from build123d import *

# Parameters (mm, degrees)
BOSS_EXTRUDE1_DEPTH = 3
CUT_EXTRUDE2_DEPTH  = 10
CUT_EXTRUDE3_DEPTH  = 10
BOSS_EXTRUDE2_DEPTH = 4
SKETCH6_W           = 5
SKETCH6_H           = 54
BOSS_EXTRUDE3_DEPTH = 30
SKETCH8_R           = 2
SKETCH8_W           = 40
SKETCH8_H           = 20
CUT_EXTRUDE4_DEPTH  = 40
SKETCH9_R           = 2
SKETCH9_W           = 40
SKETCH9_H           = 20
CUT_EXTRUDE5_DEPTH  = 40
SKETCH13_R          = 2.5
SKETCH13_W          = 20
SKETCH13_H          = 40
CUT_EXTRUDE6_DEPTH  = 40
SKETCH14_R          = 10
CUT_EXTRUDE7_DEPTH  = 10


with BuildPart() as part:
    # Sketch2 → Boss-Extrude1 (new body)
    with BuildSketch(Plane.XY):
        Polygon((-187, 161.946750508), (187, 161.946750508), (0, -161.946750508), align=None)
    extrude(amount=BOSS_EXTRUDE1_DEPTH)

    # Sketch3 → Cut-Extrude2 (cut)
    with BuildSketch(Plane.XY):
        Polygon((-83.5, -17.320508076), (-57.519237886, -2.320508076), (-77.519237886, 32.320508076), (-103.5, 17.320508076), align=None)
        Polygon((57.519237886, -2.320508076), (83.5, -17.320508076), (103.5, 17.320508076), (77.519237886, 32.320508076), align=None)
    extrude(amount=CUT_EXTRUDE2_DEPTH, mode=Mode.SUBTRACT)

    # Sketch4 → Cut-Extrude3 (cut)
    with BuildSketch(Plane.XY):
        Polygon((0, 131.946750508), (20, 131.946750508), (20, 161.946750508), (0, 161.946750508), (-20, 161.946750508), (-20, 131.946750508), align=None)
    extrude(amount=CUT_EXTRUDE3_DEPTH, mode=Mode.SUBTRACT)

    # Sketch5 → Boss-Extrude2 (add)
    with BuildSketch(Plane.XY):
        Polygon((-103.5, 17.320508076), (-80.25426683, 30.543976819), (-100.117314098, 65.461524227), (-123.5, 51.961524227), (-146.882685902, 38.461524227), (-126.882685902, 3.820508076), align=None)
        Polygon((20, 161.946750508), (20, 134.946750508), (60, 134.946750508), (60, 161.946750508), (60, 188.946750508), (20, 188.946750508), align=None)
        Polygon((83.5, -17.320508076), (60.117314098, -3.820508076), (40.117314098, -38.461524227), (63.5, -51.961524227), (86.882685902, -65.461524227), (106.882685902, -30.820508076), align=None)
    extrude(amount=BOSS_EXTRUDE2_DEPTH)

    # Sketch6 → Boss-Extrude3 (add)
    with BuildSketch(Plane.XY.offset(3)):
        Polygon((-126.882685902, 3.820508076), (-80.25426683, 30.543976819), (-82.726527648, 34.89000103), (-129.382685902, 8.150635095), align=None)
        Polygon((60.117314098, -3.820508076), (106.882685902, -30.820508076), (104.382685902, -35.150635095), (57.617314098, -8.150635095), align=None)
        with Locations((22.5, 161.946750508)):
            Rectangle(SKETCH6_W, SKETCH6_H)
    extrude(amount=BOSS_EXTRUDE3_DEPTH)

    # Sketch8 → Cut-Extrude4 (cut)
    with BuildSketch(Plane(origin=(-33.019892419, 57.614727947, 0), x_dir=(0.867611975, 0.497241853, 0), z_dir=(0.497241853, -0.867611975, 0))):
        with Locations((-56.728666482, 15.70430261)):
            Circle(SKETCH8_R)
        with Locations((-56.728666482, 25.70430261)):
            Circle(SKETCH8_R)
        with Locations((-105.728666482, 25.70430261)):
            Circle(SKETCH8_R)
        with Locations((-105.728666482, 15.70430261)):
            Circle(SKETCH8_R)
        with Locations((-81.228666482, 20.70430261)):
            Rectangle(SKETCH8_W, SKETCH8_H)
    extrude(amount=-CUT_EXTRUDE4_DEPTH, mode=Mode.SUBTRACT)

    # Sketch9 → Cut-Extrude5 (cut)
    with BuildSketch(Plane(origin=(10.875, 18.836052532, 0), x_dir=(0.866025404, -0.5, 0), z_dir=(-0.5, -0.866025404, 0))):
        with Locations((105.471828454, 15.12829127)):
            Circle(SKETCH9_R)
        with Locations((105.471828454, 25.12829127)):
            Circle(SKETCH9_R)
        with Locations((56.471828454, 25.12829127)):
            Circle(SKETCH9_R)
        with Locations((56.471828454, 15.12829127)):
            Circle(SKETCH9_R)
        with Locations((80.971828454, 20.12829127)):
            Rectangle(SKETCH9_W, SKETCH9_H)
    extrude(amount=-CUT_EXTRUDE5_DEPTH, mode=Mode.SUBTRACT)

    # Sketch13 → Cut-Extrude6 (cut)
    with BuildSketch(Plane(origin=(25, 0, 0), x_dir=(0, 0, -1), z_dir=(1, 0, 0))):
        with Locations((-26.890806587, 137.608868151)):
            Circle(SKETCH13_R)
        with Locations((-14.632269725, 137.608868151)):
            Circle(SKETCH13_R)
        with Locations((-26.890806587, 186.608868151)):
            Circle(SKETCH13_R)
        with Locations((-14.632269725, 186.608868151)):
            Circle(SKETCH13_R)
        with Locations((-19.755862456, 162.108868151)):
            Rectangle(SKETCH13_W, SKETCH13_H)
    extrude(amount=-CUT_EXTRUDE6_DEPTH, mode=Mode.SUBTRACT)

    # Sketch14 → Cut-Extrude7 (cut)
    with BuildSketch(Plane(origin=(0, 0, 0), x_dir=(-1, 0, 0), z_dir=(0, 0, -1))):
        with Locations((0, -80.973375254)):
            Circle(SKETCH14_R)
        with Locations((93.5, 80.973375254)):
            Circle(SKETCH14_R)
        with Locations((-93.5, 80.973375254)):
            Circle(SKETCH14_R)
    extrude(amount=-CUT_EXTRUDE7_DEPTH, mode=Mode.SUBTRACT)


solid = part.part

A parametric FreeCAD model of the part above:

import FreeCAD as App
import Part
import Sketcher

V = App.Vector
Q = App.Units.Quantity

doc = App.newDocument("Part")
params = doc.addObject("Spreadsheet::Sheet", "Params")
for row, (alias, value) in enumerate([
    ("sketch1_width", "374 mm"),
    ("pad1_length", "3 mm"),
    ("sketch2_length", "30 mm"),
    ("sketch2_length2", "40 mm"),
    ("pocket1_length", "10 mm"),
    ("sketch3_width", "40 mm"),
    ("sketch3_height", "30 mm"),
    ("pocket2_length", "10 mm"),
    ("sketch4_width", "40 mm"),
    ("sketch4_height", "54 mm"),
    ("sketch4_length", "54 mm"),
    ("sketch4_length2", "40 mm"),
    ("sketch4_length3", "27 mm"),
    ("pad2_length", "4 mm"),
    ("sketch5_width", "5 mm"),
    ("sketch5_height", "54 mm"),
    ("sketch5_length", "5 mm"),
    ("sketch5_length2", "5 mm"),
    ("sketch5_length3", "54 mm"),
    ("pad3_length", "30 mm"),
    ("sketch6_diameter", "4 mm"),
    ("sketch6_width", "40 mm"),
    ("sketch6_height", "20 mm"),
    ("pocket3_length", "40 mm"),
    ("sketch7_diameter", "4 mm"),
    ("sketch7_width", "40 mm"),
    ("sketch7_height", "20 mm"),
    ("pocket4_length", "40 mm"),
    ("sketch8_diameter", "5 mm"),
    ("sketch8_width", "40 mm"),
    ("sketch8_height", "20 mm"),
    ("pocket5_length", "40 mm"),
    ("sketch9_diameter", "20 mm"),
    ("pocket6_length", "10 mm"),
], start=1):
    params.set(f"A{row}", alias)
    params.set(f"B{row}", "=" + value)
    params.setAlias(f"B{row}", alias)

body = doc.addObject("PartDesign::Body", "Body")

sketch1 = body.newObject("Sketcher::SketchObject", "Sketch")
sketch1.AttachmentSupport = (doc.getObject("XY_Plane"), [""])
sketch1.MapMode = "FlatFace"
sketch1.addGeometry([
    Part.LineSegment(V(187, 162, 0), V(-187, 162, 0)),
    Part.LineSegment(V(-187, 162, 0), V(0, -162, 0)),
    Part.LineSegment(V(0, -162, 0), V(187, 162, 0)),
], False)
sketch1.addConstraint([
    Sketcher.Constraint("Coincident", 0, 2, 1, 1),
    Sketcher.Constraint("Coincident", 1, 2, 2, 1),
    Sketcher.Constraint("Coincident", 2, 2, 0, 1),
    Sketcher.Constraint("Horizontal", 0),
    Sketcher.Constraint("PointOnObject", 1, 2, -2),
    Sketcher.Constraint("Equal", 1, 2),
    Sketcher.Constraint("DistanceX", 0, 2, 0, 1, Q("374 mm")),
    Sketcher.Constraint("Angle", 1, Q("-60 deg")),
    Sketcher.Constraint("DistanceY", -1, 1, 0, 2, Q("161.946751 mm")),
])
sketch1.setExpression("Constraints[6]", "Params.sketch1_width")
pad1 = body.newObject("PartDesign::Pad", "Pad")
pad1.Profile = sketch1
pad1.setExpression("Length", "Params.pad1_length")

sketch2 = body.newObject("Sketcher::SketchObject", "Sketch001")
sketch2.AttachmentSupport = (doc.getObject("XY_Plane"), [""])
sketch2.MapMode = "FlatFace"
sketch2.addGeometry([
    Part.LineSegment(V(-84, -17, 0), V(-58, -2, 0)),
    Part.LineSegment(V(-58, -2, 0), V(-78, 32, 0)),
    Part.LineSegment(V(-78, 32, 0), V(-104, 17, 0)),
    Part.LineSegment(V(-104, 17, 0), V(-84, -17, 0)),
    Part.LineSegment(V(58, -2, 0), V(84, -17, 0)),
    Part.LineSegment(V(84, -17, 0), V(104, 17, 0)),
    Part.LineSegment(V(104, 17, 0), V(78, 32, 0)),
    Part.LineSegment(V(78, 32, 0), V(58, -2, 0)),
], False)
sketch2.addConstraint([
    Sketcher.Constraint("Coincident", 0, 2, 1, 1),
    Sketcher.Constraint("Coincident", 1, 2, 2, 1),
    Sketcher.Constraint("Coincident", 2, 2, 3, 1),
    Sketcher.Constraint("Coincident", 3, 2, 0, 1),
    Sketcher.Constraint("Coincident", 4, 2, 5, 1),
    Sketcher.Constraint("Coincident", 5, 2, 6, 1),
    Sketcher.Constraint("Coincident", 6, 2, 7, 1),
    Sketcher.Constraint("Coincident", 7, 2, 4, 1),
    Sketcher.Constraint("Symmetric", 3, 2, 4, 2, -2),
    Sketcher.Constraint("Symmetric", 2, 2, 5, 2, -2),
    Sketcher.Constraint("Symmetric", 1, 2, 6, 2, -2),
    Sketcher.Constraint("Symmetric", 0, 2, 7, 2, -2),
    Sketcher.Constraint("Perpendicular", 0, 1),
    Sketcher.Constraint("Perpendicular", 1, 2),
    Sketcher.Constraint("Perpendicular", 2, 3),
    Sketcher.Constraint("Angle", 0, Q("30 deg")),
    Sketcher.Constraint("Distance", 0, Q("30 mm")),
    Sketcher.Constraint("Distance", 1, Q("40 mm")),
    Sketcher.Constraint("DistanceX", 3, 2, 4, 2, Q("167 mm")),
    Sketcher.Constraint("DistanceY", 0, 2, -1, 1, Q("2.320508 mm")),
])
sketch2.setExpression("Constraints[16]", "Params.sketch2_length")
sketch2.setExpression("Constraints[17]", "Params.sketch2_length2")
pocket1 = body.newObject("PartDesign::Pocket", "Pocket")
pocket1.Profile = sketch2
pocket1.setExpression("Length", "Params.pocket1_length")
pocket1.Reversed = True

sketch3 = body.newObject("Sketcher::SketchObject", "Sketch002")
sketch3.AttachmentSupport = (doc.getObject("XY_Plane"), [""])
sketch3.MapMode = "FlatFace"
sketch3.addGeometry([
    Part.LineSegment(V(20, 132, 0), V(20, 162, 0)),
    Part.LineSegment(V(20, 162, 0), V(-20, 162, 0)),
    Part.LineSegment(V(-20, 162, 0), V(-20, 132, 0)),
    Part.LineSegment(V(-20, 132, 0), V(20, 132, 0)),
], False)
sketch3.addConstraint([
    Sketcher.Constraint("Coincident", 0, 2, 1, 1),
    Sketcher.Constraint("Coincident", 1, 2, 2, 1),
    Sketcher.Constraint("Coincident", 2, 2, 3, 1),
    Sketcher.Constraint("Coincident", 3, 2, 0, 1),
    Sketcher.Constraint("Vertical", 0),
    Sketcher.Constraint("Horizontal", 1),
    Sketcher.Constraint("Vertical", 2),
    Sketcher.Constraint("Horizontal", 3),
    Sketcher.Constraint("DistanceX", 1, 2, 1, 1, Q("40 mm")),
    Sketcher.Constraint("DistanceY", 0, 1, 0, 2, Q("30 mm")),
    Sketcher.Constraint("DistanceX", -1, 1, 0, 2, Q("20 mm")),
    Sketcher.Constraint("DistanceY", -1, 1, 0, 2, Q("161.946751 mm")),
])
sketch3.setExpression("Constraints[8]", "Params.sketch3_width")
sketch3.setExpression("Constraints[9]", "Params.sketch3_height")
pocket2 = body.newObject("PartDesign::Pocket", "Pocket001")
pocket2.Profile = sketch3
pocket2.setExpression("Length", "Params.pocket2_length")
pocket2.Reversed = True

sketch4 = body.newObject("Sketcher::SketchObject", "Sketch003")
sketch4.AttachmentSupport = (doc.getObject("XY_Plane"), [""])
sketch4.MapMode = "FlatFace"
sketch4.addGeometry([
    Part.LineSegment(V(-104, 17, 0), V(-80, 31, 0)),
    Part.LineSegment(V(-80, 31, 0), V(-100, 65, 0)),
    Part.LineSegment(V(-100, 65, 0), V(-147, 38, 0)),
    Part.LineSegment(V(-147, 38, 0), V(-127, 4, 0)),
    Part.LineSegment(V(-127, 4, 0), V(-104, 17, 0)),
    Part.LineSegment(V(20, 135, 0), V(60, 135, 0)),
    Part.LineSegment(V(60, 135, 0), V(60, 189, 0)),
    Part.LineSegment(V(60, 189, 0), V(20, 189, 0)),
    Part.LineSegment(V(20, 189, 0), V(20, 135, 0)),
    Part.LineSegment(V(60, -4, 0), V(40, -38, 0)),
    Part.LineSegment(V(40, -38, 0), V(87, -65, 0)),
    Part.LineSegment(V(87, -65, 0), V(107, -31, 0)),
    Part.LineSegment(V(107, -31, 0), V(60, -4, 0)),
], False)
sketch4.addConstraint([
    Sketcher.Constraint("Coincident", 0, 2, 1, 1),
    Sketcher.Constraint("Coincident", 1, 2, 2, 1),
    Sketcher.Constraint("Coincident", 2, 2, 3, 1),
    Sketcher.Constraint("Coincident", 3, 2, 4, 1),
    Sketcher.Constraint("Coincident", 4, 2, 0, 1),
    Sketcher.Constraint("Coincident", 5, 2, 6, 1),
    Sketcher.Constraint("Coincident", 6, 2, 7, 1),
    Sketcher.Constraint("Coincident", 7, 2, 8, 1),
    Sketcher.Constraint("Coincident", 8, 2, 5, 1),
    Sketcher.Constraint("Coincident", 9, 2, 10, 1),
    Sketcher.Constraint("Coincident", 10, 2, 11, 1),
    Sketcher.Constraint("Coincident", 11, 2, 12, 1),
    Sketcher.Constraint("Coincident", 12, 2, 9, 1),
    Sketcher.Constraint("Horizontal", 5),
    Sketcher.Constraint("Vertical", 6),
    Sketcher.Constraint("Horizontal", 7),
    Sketcher.Constraint("Vertical", 8),
    Sketcher.Constraint("Perpendicular", 0, 1),
    Sketcher.Constraint("Perpendicular", 2, 3),
    Sketcher.Constraint("Perpendicular", 3, 4),
    Sketcher.Constraint("Perpendicular", 9, 10),
    Sketcher.Constraint("Perpendicular", 10, 11),
    Sketcher.Constraint("Perpendicular", 11, 12),
    Sketcher.Constraint("Equal", 3, 9),
    Sketcher.Constraint("Equal", 2, 10),
    Sketcher.Constraint("DistanceX", 5, 1, 5, 2, Q("40 mm")),
    Sketcher.Constraint("DistanceY", 6, 1, 6, 2, Q("54 mm")),
    Sketcher.Constraint("Angle", 2, Q("-150 deg")),
    Sketcher.Constraint("Angle", 9, Q("-120 deg")),
    Sketcher.Constraint("Distance", 2, Q("54 mm")),
    Sketcher.Constraint("Distance", 3, Q("40 mm")),
    Sketcher.Constraint("Distance", 4, Q("27 mm")),
    Sketcher.Constraint("DistanceX", -1, 1, 5, 2, Q("60 mm")),
    Sketcher.Constraint("DistanceX", 3, 2, 9, 2, Q("167 mm")),
    Sketcher.Constraint("DistanceX", 4, 2, -1, 1, Q("103.5 mm")),
    Sketcher.Constraint("DistanceY", 9, 2, 0, 2, Q("69.005501 mm")),
    Sketcher.Constraint("DistanceY", -1, 1, 3, 2, Q("3.820508 mm")),
    Sketcher.Constraint("DistanceY", -1, 1, 5, 2, Q("134.946751 mm")),
    Sketcher.Constraint("DistanceY", 11, 2, -1, 1, Q("30.820508 mm")),
])
sketch4.setExpression("Constraints[25]", "Params.sketch4_width")
sketch4.setExpression("Constraints[26]", "Params.sketch4_height")
sketch4.setExpression("Constraints[29]", "Params.sketch4_length")
sketch4.setExpression("Constraints[30]", "Params.sketch4_length2")
sketch4.setExpression("Constraints[31]", "Params.sketch4_length3")
pad2 = body.newObject("PartDesign::Pad", "Pad001")
pad2.Profile = sketch4
pad2.setExpression("Length", "Params.pad2_length")

sketch5 = body.newObject("Sketcher::SketchObject", "Sketch004")
sketch5.AttachmentSupport = (doc.getObject("XY_Plane"), [""])
sketch5.MapMode = "FlatFace"
sketch5.AttachmentOffset = App.Placement(V(0, 0, 3), App.Rotation())
sketch5.addGeometry([
    Part.LineSegment(V(-126.882686, 3.820508, 0), V(-80.254267, 30.543977, 0)),
    Part.LineSegment(V(-80.254267, 30.543977, 0), V(-82.726528, 34.890001, 0)),
    Part.LineSegment(V(-82.726528, 34.890001, 0), V(-129.382686, 8.150635, 0)),
    Part.LineSegment(V(-129.382686, 8.150635, 0), V(-126.882686, 3.820508, 0)),
    Part.LineSegment(V(106.882686, -30.820508, 0), V(60.117314, -3.820508, 0)),
    Part.LineSegment(V(60.117314, -3.820508, 0), V(57.617314, -8.150635, 0)),
    Part.LineSegment(V(57.617314, -8.150635, 0), V(104.382686, -35.150635, 0)),
    Part.LineSegment(V(104.382686, -35.150635, 0), V(106.882686, -30.820508, 0)),
    Part.LineSegment(V(20, 188.946751, 0), V(20, 134.946751, 0)),
    Part.LineSegment(V(20, 134.946751, 0), V(25, 134.946751, 0)),
    Part.LineSegment(V(25, 134.946751, 0), V(25, 188.946751, 0)),
    Part.LineSegment(V(25, 188.946751, 0), V(20, 188.946751, 0)),
], False)
sketch5.addConstraint([
    Sketcher.Constraint("Coincident", 0, 2, 1, 1),
    Sketcher.Constraint("Coincident", 1, 2, 2, 1),
    Sketcher.Constraint("Coincident", 2, 2, 3, 1),
    Sketcher.Constraint("Coincident", 3, 2, 0, 1),
    Sketcher.Constraint("Coincident", 4, 2, 5, 1),
    Sketcher.Constraint("Coincident", 5, 2, 6, 1),
    Sketcher.Constraint("Coincident", 6, 2, 7, 1),
    Sketcher.Constraint("Coincident", 7, 2, 4, 1),
    Sketcher.Constraint("Coincident", 8, 2, 9, 1),
    Sketcher.Constraint("Coincident", 9, 2, 10, 1),
    Sketcher.Constraint("Coincident", 10, 2, 11, 1),
    Sketcher.Constraint("Coincident", 11, 2, 8, 1),
    Sketcher.Constraint("Vertical", 8),
    Sketcher.Constraint("Horizontal", 9),
    Sketcher.Constraint("Vertical", 10),
    Sketcher.Constraint("Horizontal", 11),
    Sketcher.Constraint("DistanceX", 9, 1, 9, 2, Q("5 mm")),
    Sketcher.Constraint("DistanceY", 8, 2, 8, 1, Q("54 mm")),
    Sketcher.Constraint("Distance", 1, Q("5 mm")),
    Sketcher.Constraint("Distance", 3, Q("5 mm")),
    Sketcher.Constraint("Distance", 4, Q("54 mm")),
    Sketcher.Constraint("Distance", 5, Q("5 mm")),
    Sketcher.Constraint("Distance", 6, Q("54 mm")),
    Sketcher.Constraint("Distance", 7, Q("5 mm")),
    Sketcher.Constraint("DistanceX", -1, 1, 8, 2, Q("20 mm")),
    Sketcher.Constraint("DistanceX", 3, 2, 4, 2, Q("187 mm")),
    Sketcher.Constraint("DistanceX", 2, 2, 5, 2, Q("187 mm")),
    Sketcher.Constraint("DistanceY", 6, 2, 5, 2, Q("27 mm")),
    Sketcher.Constraint("DistanceX", 2, 2, 3, 2, Q("2.5 mm")),
    Sketcher.Constraint("DistanceY", -1, 1, 1, 2, Q("34.890001 mm")),
    Sketcher.Constraint("Distance", 0, Q("53.743402 mm")),
    Sketcher.Constraint("DistanceY", -1, 1, 3, 2, Q("3.820508 mm")),
    Sketcher.Constraint("DistanceY", 4, 2, -1, 1, Q("3.820508 mm")),
    Sketcher.Constraint("DistanceY", -1, 1, 8, 2, Q("134.946751 mm")),
    Sketcher.Constraint("DistanceX", 1, 2, 0, 2, Q("2.472261 mm")),
    Sketcher.Constraint("DistanceX", 0, 2, -1, 1, Q("80.254267 mm")),
])
sketch5.setExpression("Constraints[16]", "Params.sketch5_width")
sketch5.setExpression("Constraints[17]", "Params.sketch5_height")
sketch5.setExpression("Constraints[18]", "Params.sketch5_length")
sketch5.setExpression("Constraints[19]", "Params.sketch5_length2")
sketch5.setExpression("Constraints[20]", "Params.sketch5_length3")
pad3 = body.newObject("PartDesign::Pad", "Pad002")
pad3.Profile = sketch5
pad3.setExpression("Length", "Params.pad3_length")

sketch6 = body.newObject("Sketcher::SketchObject", "Sketch005")
sketch6.Placement = App.Placement(V(-33.019892, 57.614728, 0), App.Rotation(V(0.867611975, 0.497241853, 0), V(0, 0, 1), V(0.497241853, -0.867611975, 0), "ZXY"))
sketch6.addGeometry([
    Part.Circle(V(-56.7, 15.7, 0), V(0, 0, 1), 2),
    Part.Circle(V(-56.7, 25.7, 0), V(0, 0, 1), 2),
    Part.Circle(V(-105.7, 25.7, 0), V(0, 0, 1), 2),
    Part.Circle(V(-105.7, 15.7, 0), V(0, 0, 1), 2),
    Part.LineSegment(V(-101.2, 30.7, 0), V(-101.2, 10.7, 0)),
    Part.LineSegment(V(-101.2, 10.7, 0), V(-61.2, 10.7, 0)),
    Part.LineSegment(V(-61.2, 10.7, 0), V(-61.2, 30.7, 0)),
    Part.LineSegment(V(-61.2, 30.7, 0), V(-101.2, 30.7, 0)),
], False)
sketch6.addConstraint([
    Sketcher.Constraint("Coincident", 4, 2, 5, 1),
    Sketcher.Constraint("Coincident", 5, 2, 6, 1),
    Sketcher.Constraint("Coincident", 6, 2, 7, 1),
    Sketcher.Constraint("Coincident", 7, 2, 4, 1),
    Sketcher.Constraint("Vertical", 4),
    Sketcher.Constraint("Horizontal", 5),
    Sketcher.Constraint("Vertical", 6),
    Sketcher.Constraint("Horizontal", 7),
    Sketcher.Constraint("Equal", 0, 1),
    Sketcher.Constraint("Equal", 1, 2),
    Sketcher.Constraint("Equal", 2, 3),
    Sketcher.Constraint("Horizontal", 1, 3, 2, 3),
    Sketcher.Constraint("Horizontal", 0, 3, 3, 3),
    Sketcher.Constraint("Vertical", 0, 3, 1, 3),
    Sketcher.Constraint("Vertical", 2, 3, 3, 3),
    Sketcher.Constraint("Diameter", 0, Q("4 mm")),
    Sketcher.Constraint("DistanceX", 5, 1, 5, 2, Q("40 mm")),
    Sketcher.Constraint("DistanceY", 4, 2, 4, 1, Q("20 mm")),
    Sketcher.Constraint("DistanceY", 0, 3, 1, 3, Q("10 mm")),
    Sketcher.Constraint("DistanceX", 2, 3, 1, 3, Q("49 mm")),
    Sketcher.Constraint("DistanceY", 4, 2, 3, 3, Q("5 mm")),
    Sketcher.Constraint("DistanceX", 3, 3, 4, 2, Q("4.5 mm")),
    Sketcher.Constraint("DistanceX", 0, 3, -1, 1, Q("56.728666 mm")),
    Sketcher.Constraint("DistanceY", -1, 1, 0, 3, Q("15.704303 mm")),
])
sketch6.setExpression("Constraints[15]", "Params.sketch6_diameter")
sketch6.setExpression("Constraints[16]", "Params.sketch6_width")
sketch6.setExpression("Constraints[17]", "Params.sketch6_height")
pocket3 = body.newObject("PartDesign::Pocket", "Pocket002")
pocket3.Profile = sketch6
pocket3.setExpression("Length", "Params.pocket3_length")

sketch7 = body.newObject("Sketcher::SketchObject", "Sketch006")
sketch7.Placement = App.Placement(V(10.875, 18.836053, 0), App.Rotation(V(0.866025404, -0.5, 0), V(0, 0, 1), V(-0.5, -0.866025404, 0), "ZXY"))
sketch7.addGeometry([
    Part.Circle(V(105.5, 15.1, 0), V(0, 0, 1), 2),
    Part.Circle(V(105.5, 25.1, 0), V(0, 0, 1), 2),
    Part.Circle(V(56.5, 25.1, 0), V(0, 0, 1), 2),
    Part.Circle(V(56.5, 15.1, 0), V(0, 0, 1), 2),
    Part.LineSegment(V(61, 30.1, 0), V(61, 10.1, 0)),
    Part.LineSegment(V(61, 10.1, 0), V(101, 10.1, 0)),
    Part.LineSegment(V(101, 10.1, 0), V(101, 30.1, 0)),
    Part.LineSegment(V(101, 30.1, 0), V(61, 30.1, 0)),
], False)
sketch7.addConstraint([
    Sketcher.Constraint("Coincident", 4, 2, 5, 1),
    Sketcher.Constraint("Coincident", 5, 2, 6, 1),
    Sketcher.Constraint("Coincident", 6, 2, 7, 1),
    Sketcher.Constraint("Coincident", 7, 2, 4, 1),
    Sketcher.Constraint("Vertical", 4),
    Sketcher.Constraint("Horizontal", 5),
    Sketcher.Constraint("Vertical", 6),
    Sketcher.Constraint("Horizontal", 7),
    Sketcher.Constraint("Equal", 0, 1),
    Sketcher.Constraint("Equal", 1, 2),
    Sketcher.Constraint("Equal", 2, 3),
    Sketcher.Constraint("Horizontal", 1, 3, 2, 3),
    Sketcher.Constraint("Horizontal", 0, 3, 3, 3),
    Sketcher.Constraint("Vertical", 0, 3, 1, 3),
    Sketcher.Constraint("Vertical", 2, 3, 3, 3),
    Sketcher.Constraint("Diameter", 0, Q("4 mm")),
    Sketcher.Constraint("DistanceX", 5, 1, 5, 2, Q("40 mm")),
    Sketcher.Constraint("DistanceY", 4, 2, 4, 1, Q("20 mm")),
    Sketcher.Constraint("DistanceY", 0, 3, 1, 3, Q("10 mm")),
    Sketcher.Constraint("DistanceX", 2, 3, 1, 3, Q("49 mm")),
    Sketcher.Constraint("DistanceY", 4, 2, 3, 3, Q("5 mm")),
    Sketcher.Constraint("DistanceX", 3, 3, 4, 2, Q("4.5 mm")),
    Sketcher.Constraint("DistanceX", -1, 1, 0, 3, Q("105.471828 mm")),
    Sketcher.Constraint("DistanceY", -1, 1, 0, 3, Q("15.128291 mm")),
])
sketch7.setExpression("Constraints[15]", "Params.sketch7_diameter")
sketch7.setExpression("Constraints[16]", "Params.sketch7_width")
sketch7.setExpression("Constraints[17]", "Params.sketch7_height")
pocket4 = body.newObject("PartDesign::Pocket", "Pocket003")
pocket4.Profile = sketch7
pocket4.setExpression("Length", "Params.pocket4_length")

sketch8 = body.newObject("Sketcher::SketchObject", "Sketch007")
sketch8.AttachmentSupport = (doc.getObject("YZ_Plane"), [""])
sketch8.MapMode = "FlatFace"
sketch8.AttachmentOffset = App.Placement(V(0, 0, 25), App.Rotation())
sketch8.addGeometry([
    Part.Circle(V(137.6, 26.9, 0), V(0, 0, 1), 2.5),
    Part.Circle(V(137.6, 14.6, 0), V(0, 0, 1), 2.5),
    Part.Circle(V(186.6, 26.9, 0), V(0, 0, 1), 2.5),
    Part.Circle(V(186.6, 14.6, 0), V(0, 0, 1), 2.5),
    Part.LineSegment(V(182.1, 29.8, 0), V(142.1, 29.8, 0)),
    Part.LineSegment(V(142.1, 29.8, 0), V(142.1, 9.8, 0)),
    Part.LineSegment(V(142.1, 9.8, 0), V(182.1, 9.8, 0)),
    Part.LineSegment(V(182.1, 9.8, 0), V(182.1, 29.8, 0)),
], False)
sketch8.addConstraint([
    Sketcher.Constraint("Coincident", 4, 2, 5, 1),
    Sketcher.Constraint("Coincident", 5, 2, 6, 1),
    Sketcher.Constraint("Coincident", 6, 2, 7, 1),
    Sketcher.Constraint("Coincident", 7, 2, 4, 1),
    Sketcher.Constraint("Horizontal", 4),
    Sketcher.Constraint("Vertical", 5),
    Sketcher.Constraint("Horizontal", 6),
    Sketcher.Constraint("Vertical", 7),
    Sketcher.Constraint("Equal", 0, 1),
    Sketcher.Constraint("Equal", 1, 2),
    Sketcher.Constraint("Equal", 2, 3),
    Sketcher.Constraint("Horizontal", 0, 3, 2, 3),
    Sketcher.Constraint("Horizontal", 1, 3, 3, 3),
    Sketcher.Constraint("Vertical", 0, 3, 1, 3),
    Sketcher.Constraint("Vertical", 2, 3, 3, 3),
    Sketcher.Constraint("Diameter", 0, Q("5 mm")),
    Sketcher.Constraint("DistanceX", 4, 2, 4, 1, Q("40 mm")),
    Sketcher.Constraint("DistanceY", 5, 2, 5, 1, Q("20 mm")),
    Sketcher.Constraint("DistanceX", 0, 3, 2, 3, Q("49 mm")),
    Sketcher.Constraint("DistanceX", 0, 3, 4, 2, Q("4.5 mm")),
    Sketcher.Constraint("DistanceX", -1, 1, 0, 3, Q("137.608868 mm")),
    Sketcher.Constraint("DistanceY", -1, 1, 1, 3, Q("14.63227 mm")),
    Sketcher.Constraint("DistanceY", -1, 1, 0, 3, Q("26.890807 mm")),
    Sketcher.Constraint("DistanceY", -1, 1, 4, 2, Q("29.755862 mm")),
])
sketch8.setExpression("Constraints[15]", "Params.sketch8_diameter")
sketch8.setExpression("Constraints[16]", "Params.sketch8_width")
sketch8.setExpression("Constraints[17]", "Params.sketch8_height")
pocket5 = body.newObject("PartDesign::Pocket", "Pocket004")
pocket5.Profile = sketch8
pocket5.setExpression("Length", "Params.pocket5_length")

sketch9 = body.newObject("Sketcher::SketchObject", "Sketch008")
sketch9.AttachmentSupport = (doc.getObject("XY_Plane"), [""])
sketch9.MapMode = "FlatFace"
sketch9.addGeometry([
    Part.Circle(V(0, -81, 0), V(0, 0, 1), 10),
    Part.Circle(V(-94, 81, 0), V(0, 0, 1), 10),
    Part.Circle(V(94, 81, 0), V(0, 0, 1), 10),
], False)
sketch9.addConstraint([
    Sketcher.Constraint("Equal", 0, 1),
    Sketcher.Constraint("Equal", 1, 2),
    Sketcher.Constraint("Symmetric", 1, 3, 2, 3, -2),
    Sketcher.Constraint("PointOnObject", 0, 3, -2),
    Sketcher.Constraint("Diameter", 0, Q("20 mm")),
    Sketcher.Constraint("DistanceX", 1, 3, 2, 3, Q("187 mm")),
    Sketcher.Constraint("DistanceY", 0, 3, 1, 3, Q("161.946751 mm")),
    Sketcher.Constraint("DistanceY", 0, 3, -1, 1, Q("80.973375 mm")),
])
sketch9.setExpression("Constraints[4]", "Params.sketch9_diameter")
pocket6 = body.newObject("PartDesign::Pocket", "Pocket005")
pocket6.Profile = sketch9
pocket6.setExpression("Length", "Params.pocket6_length")
pocket6.Reversed = True

doc.recompute()
